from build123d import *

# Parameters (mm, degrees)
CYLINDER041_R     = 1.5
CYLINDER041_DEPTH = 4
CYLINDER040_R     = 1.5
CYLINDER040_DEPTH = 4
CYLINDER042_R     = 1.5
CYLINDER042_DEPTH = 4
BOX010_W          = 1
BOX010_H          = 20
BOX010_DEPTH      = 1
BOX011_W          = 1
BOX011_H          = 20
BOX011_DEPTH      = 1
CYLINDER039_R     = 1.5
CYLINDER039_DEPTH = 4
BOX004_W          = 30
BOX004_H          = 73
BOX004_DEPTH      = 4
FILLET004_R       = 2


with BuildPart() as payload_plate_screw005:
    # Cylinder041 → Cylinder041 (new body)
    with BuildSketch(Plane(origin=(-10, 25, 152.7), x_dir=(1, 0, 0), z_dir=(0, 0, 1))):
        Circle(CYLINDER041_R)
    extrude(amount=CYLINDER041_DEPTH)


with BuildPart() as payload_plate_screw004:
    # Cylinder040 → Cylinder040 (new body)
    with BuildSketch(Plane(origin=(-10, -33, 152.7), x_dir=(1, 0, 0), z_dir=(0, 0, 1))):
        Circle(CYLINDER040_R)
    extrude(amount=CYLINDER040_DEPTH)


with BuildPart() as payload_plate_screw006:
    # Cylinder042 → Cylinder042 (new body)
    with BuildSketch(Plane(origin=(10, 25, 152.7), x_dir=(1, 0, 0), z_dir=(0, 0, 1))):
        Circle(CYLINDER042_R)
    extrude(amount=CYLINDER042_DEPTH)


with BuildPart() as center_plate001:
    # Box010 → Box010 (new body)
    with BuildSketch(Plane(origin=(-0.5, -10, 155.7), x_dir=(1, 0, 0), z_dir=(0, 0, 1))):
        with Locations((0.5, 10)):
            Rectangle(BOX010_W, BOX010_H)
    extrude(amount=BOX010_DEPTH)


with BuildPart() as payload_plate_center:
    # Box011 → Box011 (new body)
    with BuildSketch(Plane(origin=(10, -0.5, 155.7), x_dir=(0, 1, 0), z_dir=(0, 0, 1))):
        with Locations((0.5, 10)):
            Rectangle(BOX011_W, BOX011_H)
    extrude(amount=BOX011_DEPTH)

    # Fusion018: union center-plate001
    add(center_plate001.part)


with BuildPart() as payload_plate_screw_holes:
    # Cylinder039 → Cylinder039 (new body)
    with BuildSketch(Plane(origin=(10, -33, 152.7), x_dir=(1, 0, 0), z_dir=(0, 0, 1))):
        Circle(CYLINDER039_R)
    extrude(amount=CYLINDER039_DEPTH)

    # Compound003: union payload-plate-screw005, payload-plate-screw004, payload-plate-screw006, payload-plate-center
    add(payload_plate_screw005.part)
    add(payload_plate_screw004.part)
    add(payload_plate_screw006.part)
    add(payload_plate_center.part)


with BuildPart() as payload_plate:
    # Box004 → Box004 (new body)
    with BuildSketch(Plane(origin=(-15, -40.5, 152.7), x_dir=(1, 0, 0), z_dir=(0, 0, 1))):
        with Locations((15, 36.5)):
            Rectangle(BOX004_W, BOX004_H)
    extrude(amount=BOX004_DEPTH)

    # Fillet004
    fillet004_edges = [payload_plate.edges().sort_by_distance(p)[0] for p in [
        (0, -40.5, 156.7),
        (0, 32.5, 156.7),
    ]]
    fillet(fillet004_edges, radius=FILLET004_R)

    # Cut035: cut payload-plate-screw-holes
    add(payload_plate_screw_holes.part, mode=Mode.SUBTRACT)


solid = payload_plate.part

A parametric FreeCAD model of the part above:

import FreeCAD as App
import Part
import Sketcher

V = App.Vector
Q = App.Units.Quantity


def edges_at(feature, points):
    """Names of the edges that pass closest to the given points."""
    edges = feature.Shape.Edges
    near = lambda p: min(range(len(edges)), key=lambda i: edges[i].distToShape(Part.Vertex(*p))[0])
    return sorted({f"Edge{near(p) + 1}" for p in points})

doc = App.newDocument("Part")
body = doc.addObject("PartDesign::Body", "Body")

# Sketch on XY plane
sketch1 = body.newObject("Sketcher::SketchObject", "Sketch")
sketch1.AttachmentSupport = (doc.getObject("XY_Plane"), [""])
sketch1.MapMode = "FlatFace"
sketch1.AttachmentOffset = App.Placement(V(0, 0, 152.7), App.Rotation())
sketch1.addGeometry(Part.Circle(V(-10, 25, 0), V(0, 0, 1), 1.5), False)
sketch1.addConstraint([
    Sketcher.Constraint("Diameter", 0, Q("3 mm")),
    Sketcher.Constraint("DistanceX", 0, 3, -1, 1, Q("10 mm")),
    Sketcher.Constraint("DistanceY", -1, 1, 0, 3, Q("25 mm")),
])
pad1 = body.newObject("PartDesign::Pad", "Pad")
pad1.Profile = sketch1
pad1.Length = 4
body2 = doc.addObject("PartDesign::Body", "Body001")

# Sketch on XY plane
sketch2 = body2.newObject("Sketcher::SketchObject", "Sketch001")
sketch2.AttachmentSupport = (doc.getObject("XY_Plane001"), [""])
sketch2.MapMode = "FlatFace"
sketch2.AttachmentOffset = App.Placement(V(0, 0, 152.7), App.Rotation())
sketch2.addGeometry(Part.Circle(V(-10, -33, 0), V(0, 0, 1), 1.5), False)
sketch2.addConstraint([
    Sketcher.Constraint("Diameter", 0, Q("3 mm")),
    Sketcher.Constraint("DistanceX", 0, 3, -1, 1, Q("10 mm")),
    Sketcher.Constraint("DistanceY", 0, 3, -1, 1, Q("33 mm")),
])
pad2 = body2.newObject("PartDesign::Pad", "Pad001")
pad2.Profile = sketch2
pad2.Length = 4
body3 = doc.addObject("PartDesign::Body", "Body002")

# Sketch on XY plane
sketch3 = body3.newObject("Sketcher::SketchObject", "Sketch002")
sketch3.AttachmentSupport = (doc.getObject("XY_Plane002"), [""])
sketch3.MapMode = "FlatFace"
sketch3.AttachmentOffset = App.Placement(V(0, 0, 152.7), App.Rotation())
sketch3.addGeometry(Part.Circle(V(10, 25, 0), V(0, 0, 1), 1.5), False)
sketch3.addConstraint([
    Sketcher.Constraint("Diameter", 0, Q("3 mm")),
    Sketcher.Constraint("DistanceX", -1, 1, 0, 3, Q("10 mm")),
    Sketcher.Constraint("DistanceY", -1, 1, 0, 3, Q("25 mm")),
])
pad3 = body3.newObject("PartDesign::Pad", "Pad002")
pad3.Profile = sketch3
pad3.Length = 4
body4 = doc.addObject("PartDesign::Body", "Body003")

# Sketch on XY plane
sketch4 = body4.newObject("Sketcher::SketchObject", "Sketch003")
sketch4.AttachmentSupport = (doc.getObject("XY_Plane003"), [""])
sketch4.MapMode = "FlatFace"
sketch4.AttachmentOffset = App.Placement(V(0, 0, 155.7), App.Rotation())
sketch4.addGeometry([
    Part.LineSegment(V(-0.5, 10, 0), V(-0.5, -10, 0)),
    Part.LineSegment(V(-0.5, -10, 0), V(0.5, -10, 0)),
    Part.LineSegment(V(0.5, -10, 0), V(0.5, 10, 0)),
    Part.LineSegment(V(0.5, 10, 0), V(-0.5, 10, 0)),
], False)
sketch4.addConstraint([
    Sketcher.Constraint("Coincident", 0, 2, 1, 1),
    Sketcher.Constraint("Coincident", 1, 2, 2, 1),
    Sketcher.Constraint("Coincident", 2, 2, 3, 1),
    Sketcher.Constraint("Coincident", 3, 2, 0, 1),
    Sketcher.Constraint("Vertical", 0),
    Sketcher.Constraint("Horizontal", 1),
    Sketcher.Constraint("Vertical", 2),
    Sketcher.Constraint("Horizontal", 3),
    Sketcher.Constraint("Symmetric", 0, 2, 2, 2, -1, 1),
    Sketcher.Constraint("DistanceX", 1, 1, 1, 2, Q("1 mm")),
    Sketcher.Constraint("DistanceY", 0, 2, 0, 1, Q("20 mm")),
])
pad4 = body4.newObject("PartDesign::Pad", "Pad003")
pad4.Profile = sketch4
pad4.Length = 1
body5 = doc.addObject("PartDesign::Body", "Body004")

# Sketch on XY plane
sketch5 = body5.newObject("Sketcher::SketchObject", "Sketch004")
sketch5.AttachmentSupport = (doc.getObject("XY_Plane004"), [""])
sketch5.MapMode = "FlatFace"
sketch5.AttachmentOffset = App.Placement(V(0, 0, 155.7), App.Rotation())
sketch5.addGeometry([
    Part.LineSegment(V(-10, -0.5, 0), V(10, -0.5, 0)),
    Part.LineSegment(V(10, -0.5, 0), V(10, 0.5, 0)),
    Part.LineSegment(V(10, 0.5, 0), V(-10, 0.5, 0)),
    Part.LineSegment(V(-10, 0.5, 0), V(-10, -0.5, 0)),
], False)
sketch5.addConstraint([
    Sketcher.Constraint("Coincident", 0, 2, 1, 1),
    Sketcher.Constraint("Coincident", 1, 2, 2, 1),
    Sketcher.Constraint("Coincident", 2, 2, 3, 1),
    Sketcher.Constraint("Coincident", 3, 2, 0, 1),
    Sketcher.Constraint("Horizontal", 0),
    Sketcher.Constraint("Vertical", 1),
    Sketcher.Constraint("Horizontal", 2),
    Sketcher.Constraint("Vertical", 3),
    Sketcher.Constraint("Symmetric", 0, 2, 2, 2, -1, 1),
    Sketcher.Constraint("DistanceX", 0, 1, 0, 2, Q("20 mm")),
    Sketcher.Constraint("DistanceY", 1, 1, 1, 2, Q("1 mm")),
])
pad5 = body5.newObject("PartDesign::Pad", "Pad004")
pad5.Profile = sketch5
pad5.Length = 1
doc.recompute()

boolean = body5.newObject("PartDesign::Boolean", "Boolean")
boolean.Type = "Fuse"
boolean.addObjects([body4])
body6 = doc.addObject("PartDesign::Body", "Body005")
body6.AllowCompound = True

# Sketch on XY plane
sketch6 = body6.newObject("Sketcher::SketchObject", "Sketch005")
sketch6.AttachmentSupport = (doc.getObject("XY_Plane005"), [""])
sketch6.MapMode = "FlatFace"
sketch6.AttachmentOffset = App.Placement(V(0, 0, 152.7), App.Rotation())
sketch6.addGeometry(Part.Circle(V(10, -33, 0), V(0, 0, 1), 1.5), False)
sketch6.addConstraint([
    Sketcher.Constraint("Diameter", 0, Q("3 mm")),
    Sketcher.Constraint("DistanceX", -1, 1, 0, 3, Q("10 mm")),
    Sketcher.Constraint("DistanceY", 0, 3, -1, 1, Q("33 mm")),
])
pad6 = body6.newObject("PartDesign::Pad", "Pad005")
pad6.Profile = sketch6
pad6.Length = 4
doc.recompute()

boolean2 = body6.newObject("PartDesign::Boolean", "Boolean001")
boolean2.Type = "Fuse"
boolean2.addObjects([body])
doc.recompute()

boolean3 = body6.newObject("PartDesign::Boolean", "Boolean002")
boolean3.Type = "Fuse"
boolean3.addObjects([body2])
doc.recompute()

boolean4 = body6.newObject("PartDesign::Boolean", "Boolean003")
boolean4.Type = "Fuse"
boolean4.addObjects([body3])
doc.recompute()

boolean5 = body6.newObject("PartDesign::Boolean", "Boolean004")
boolean5.Type = "Fuse"
boolean5.addObjects([body5])
body7 = doc.addObject("PartDesign::Body", "Body006")

# Sketch on XY plane
sketch7 = body7.newObject("Sketcher::SketchObject", "Sketch006")
sketch7.AttachmentSupport = (doc.getObject("XY_Plane006"), [""])
sketch7.MapMode = "FlatFace"
sketch7.AttachmentOffset = App.Placement(V(0, 0, 152.7), App.Rotation())
sketch7.addGeometry([
    Part.LineSegment(V(-15, 32, 0), V(-15, -40, 0)),
    Part.LineSegment(V(-15, -40, 0), V(15, -40, 0)),
    Part.LineSegment(V(15, -40, 0), V(15, 32, 0)),
    Part.LineSegment(V(15, 32, 0), V(-15, 32, 0)),
], False)
sketch7.addConstraint([
    Sketcher.Constraint("Coincident", 0, 2, 1, 1),
    Sketcher.Constraint("Coincident", 1, 2, 2, 1),
    Sketcher.Constraint("Coincident", 2, 2, 3, 1),
    Sketcher.Constraint("Coincident", 3, 2, 0, 1),
    Sketcher.Constraint("Vertical", 0),
    Sketcher.Constraint("Horizontal", 1),
    Sketcher.Constraint("Vertical", 2),
    Sketcher.Constraint("Horizontal", 3),
    Sketcher.Constraint("DistanceX", 1, 1, 1, 2, Q("30 mm")),
    Sketcher.Constraint("DistanceY", 0, 2, 0, 1, Q("73 mm")),
    Sketcher.Constraint("DistanceX", 0, 2, -1, 1, Q("15 mm")),
    Sketcher.Constraint("DistanceY", 0, 2, -1, 1, Q("40.5 mm")),
])
pad7 = body7.newObject("PartDesign::Pad", "Pad006")
pad7.Profile = sketch7
pad7.Length = 4
doc.recompute()

fillet = body7.newObject("PartDesign::Fillet", "Fillet")
fillet.Base = (pad7, edges_at(pad7, [(0, -40.5, 156.7), (0, 32.5, 156.7)]))
fillet.Radius = 2
doc.recompute()

boolean6 = body7.newObject("PartDesign::Boolean", "Boolean005")
boolean6.Type = "Cut"
boolean6.addObjects([body6])

doc.recompute()
